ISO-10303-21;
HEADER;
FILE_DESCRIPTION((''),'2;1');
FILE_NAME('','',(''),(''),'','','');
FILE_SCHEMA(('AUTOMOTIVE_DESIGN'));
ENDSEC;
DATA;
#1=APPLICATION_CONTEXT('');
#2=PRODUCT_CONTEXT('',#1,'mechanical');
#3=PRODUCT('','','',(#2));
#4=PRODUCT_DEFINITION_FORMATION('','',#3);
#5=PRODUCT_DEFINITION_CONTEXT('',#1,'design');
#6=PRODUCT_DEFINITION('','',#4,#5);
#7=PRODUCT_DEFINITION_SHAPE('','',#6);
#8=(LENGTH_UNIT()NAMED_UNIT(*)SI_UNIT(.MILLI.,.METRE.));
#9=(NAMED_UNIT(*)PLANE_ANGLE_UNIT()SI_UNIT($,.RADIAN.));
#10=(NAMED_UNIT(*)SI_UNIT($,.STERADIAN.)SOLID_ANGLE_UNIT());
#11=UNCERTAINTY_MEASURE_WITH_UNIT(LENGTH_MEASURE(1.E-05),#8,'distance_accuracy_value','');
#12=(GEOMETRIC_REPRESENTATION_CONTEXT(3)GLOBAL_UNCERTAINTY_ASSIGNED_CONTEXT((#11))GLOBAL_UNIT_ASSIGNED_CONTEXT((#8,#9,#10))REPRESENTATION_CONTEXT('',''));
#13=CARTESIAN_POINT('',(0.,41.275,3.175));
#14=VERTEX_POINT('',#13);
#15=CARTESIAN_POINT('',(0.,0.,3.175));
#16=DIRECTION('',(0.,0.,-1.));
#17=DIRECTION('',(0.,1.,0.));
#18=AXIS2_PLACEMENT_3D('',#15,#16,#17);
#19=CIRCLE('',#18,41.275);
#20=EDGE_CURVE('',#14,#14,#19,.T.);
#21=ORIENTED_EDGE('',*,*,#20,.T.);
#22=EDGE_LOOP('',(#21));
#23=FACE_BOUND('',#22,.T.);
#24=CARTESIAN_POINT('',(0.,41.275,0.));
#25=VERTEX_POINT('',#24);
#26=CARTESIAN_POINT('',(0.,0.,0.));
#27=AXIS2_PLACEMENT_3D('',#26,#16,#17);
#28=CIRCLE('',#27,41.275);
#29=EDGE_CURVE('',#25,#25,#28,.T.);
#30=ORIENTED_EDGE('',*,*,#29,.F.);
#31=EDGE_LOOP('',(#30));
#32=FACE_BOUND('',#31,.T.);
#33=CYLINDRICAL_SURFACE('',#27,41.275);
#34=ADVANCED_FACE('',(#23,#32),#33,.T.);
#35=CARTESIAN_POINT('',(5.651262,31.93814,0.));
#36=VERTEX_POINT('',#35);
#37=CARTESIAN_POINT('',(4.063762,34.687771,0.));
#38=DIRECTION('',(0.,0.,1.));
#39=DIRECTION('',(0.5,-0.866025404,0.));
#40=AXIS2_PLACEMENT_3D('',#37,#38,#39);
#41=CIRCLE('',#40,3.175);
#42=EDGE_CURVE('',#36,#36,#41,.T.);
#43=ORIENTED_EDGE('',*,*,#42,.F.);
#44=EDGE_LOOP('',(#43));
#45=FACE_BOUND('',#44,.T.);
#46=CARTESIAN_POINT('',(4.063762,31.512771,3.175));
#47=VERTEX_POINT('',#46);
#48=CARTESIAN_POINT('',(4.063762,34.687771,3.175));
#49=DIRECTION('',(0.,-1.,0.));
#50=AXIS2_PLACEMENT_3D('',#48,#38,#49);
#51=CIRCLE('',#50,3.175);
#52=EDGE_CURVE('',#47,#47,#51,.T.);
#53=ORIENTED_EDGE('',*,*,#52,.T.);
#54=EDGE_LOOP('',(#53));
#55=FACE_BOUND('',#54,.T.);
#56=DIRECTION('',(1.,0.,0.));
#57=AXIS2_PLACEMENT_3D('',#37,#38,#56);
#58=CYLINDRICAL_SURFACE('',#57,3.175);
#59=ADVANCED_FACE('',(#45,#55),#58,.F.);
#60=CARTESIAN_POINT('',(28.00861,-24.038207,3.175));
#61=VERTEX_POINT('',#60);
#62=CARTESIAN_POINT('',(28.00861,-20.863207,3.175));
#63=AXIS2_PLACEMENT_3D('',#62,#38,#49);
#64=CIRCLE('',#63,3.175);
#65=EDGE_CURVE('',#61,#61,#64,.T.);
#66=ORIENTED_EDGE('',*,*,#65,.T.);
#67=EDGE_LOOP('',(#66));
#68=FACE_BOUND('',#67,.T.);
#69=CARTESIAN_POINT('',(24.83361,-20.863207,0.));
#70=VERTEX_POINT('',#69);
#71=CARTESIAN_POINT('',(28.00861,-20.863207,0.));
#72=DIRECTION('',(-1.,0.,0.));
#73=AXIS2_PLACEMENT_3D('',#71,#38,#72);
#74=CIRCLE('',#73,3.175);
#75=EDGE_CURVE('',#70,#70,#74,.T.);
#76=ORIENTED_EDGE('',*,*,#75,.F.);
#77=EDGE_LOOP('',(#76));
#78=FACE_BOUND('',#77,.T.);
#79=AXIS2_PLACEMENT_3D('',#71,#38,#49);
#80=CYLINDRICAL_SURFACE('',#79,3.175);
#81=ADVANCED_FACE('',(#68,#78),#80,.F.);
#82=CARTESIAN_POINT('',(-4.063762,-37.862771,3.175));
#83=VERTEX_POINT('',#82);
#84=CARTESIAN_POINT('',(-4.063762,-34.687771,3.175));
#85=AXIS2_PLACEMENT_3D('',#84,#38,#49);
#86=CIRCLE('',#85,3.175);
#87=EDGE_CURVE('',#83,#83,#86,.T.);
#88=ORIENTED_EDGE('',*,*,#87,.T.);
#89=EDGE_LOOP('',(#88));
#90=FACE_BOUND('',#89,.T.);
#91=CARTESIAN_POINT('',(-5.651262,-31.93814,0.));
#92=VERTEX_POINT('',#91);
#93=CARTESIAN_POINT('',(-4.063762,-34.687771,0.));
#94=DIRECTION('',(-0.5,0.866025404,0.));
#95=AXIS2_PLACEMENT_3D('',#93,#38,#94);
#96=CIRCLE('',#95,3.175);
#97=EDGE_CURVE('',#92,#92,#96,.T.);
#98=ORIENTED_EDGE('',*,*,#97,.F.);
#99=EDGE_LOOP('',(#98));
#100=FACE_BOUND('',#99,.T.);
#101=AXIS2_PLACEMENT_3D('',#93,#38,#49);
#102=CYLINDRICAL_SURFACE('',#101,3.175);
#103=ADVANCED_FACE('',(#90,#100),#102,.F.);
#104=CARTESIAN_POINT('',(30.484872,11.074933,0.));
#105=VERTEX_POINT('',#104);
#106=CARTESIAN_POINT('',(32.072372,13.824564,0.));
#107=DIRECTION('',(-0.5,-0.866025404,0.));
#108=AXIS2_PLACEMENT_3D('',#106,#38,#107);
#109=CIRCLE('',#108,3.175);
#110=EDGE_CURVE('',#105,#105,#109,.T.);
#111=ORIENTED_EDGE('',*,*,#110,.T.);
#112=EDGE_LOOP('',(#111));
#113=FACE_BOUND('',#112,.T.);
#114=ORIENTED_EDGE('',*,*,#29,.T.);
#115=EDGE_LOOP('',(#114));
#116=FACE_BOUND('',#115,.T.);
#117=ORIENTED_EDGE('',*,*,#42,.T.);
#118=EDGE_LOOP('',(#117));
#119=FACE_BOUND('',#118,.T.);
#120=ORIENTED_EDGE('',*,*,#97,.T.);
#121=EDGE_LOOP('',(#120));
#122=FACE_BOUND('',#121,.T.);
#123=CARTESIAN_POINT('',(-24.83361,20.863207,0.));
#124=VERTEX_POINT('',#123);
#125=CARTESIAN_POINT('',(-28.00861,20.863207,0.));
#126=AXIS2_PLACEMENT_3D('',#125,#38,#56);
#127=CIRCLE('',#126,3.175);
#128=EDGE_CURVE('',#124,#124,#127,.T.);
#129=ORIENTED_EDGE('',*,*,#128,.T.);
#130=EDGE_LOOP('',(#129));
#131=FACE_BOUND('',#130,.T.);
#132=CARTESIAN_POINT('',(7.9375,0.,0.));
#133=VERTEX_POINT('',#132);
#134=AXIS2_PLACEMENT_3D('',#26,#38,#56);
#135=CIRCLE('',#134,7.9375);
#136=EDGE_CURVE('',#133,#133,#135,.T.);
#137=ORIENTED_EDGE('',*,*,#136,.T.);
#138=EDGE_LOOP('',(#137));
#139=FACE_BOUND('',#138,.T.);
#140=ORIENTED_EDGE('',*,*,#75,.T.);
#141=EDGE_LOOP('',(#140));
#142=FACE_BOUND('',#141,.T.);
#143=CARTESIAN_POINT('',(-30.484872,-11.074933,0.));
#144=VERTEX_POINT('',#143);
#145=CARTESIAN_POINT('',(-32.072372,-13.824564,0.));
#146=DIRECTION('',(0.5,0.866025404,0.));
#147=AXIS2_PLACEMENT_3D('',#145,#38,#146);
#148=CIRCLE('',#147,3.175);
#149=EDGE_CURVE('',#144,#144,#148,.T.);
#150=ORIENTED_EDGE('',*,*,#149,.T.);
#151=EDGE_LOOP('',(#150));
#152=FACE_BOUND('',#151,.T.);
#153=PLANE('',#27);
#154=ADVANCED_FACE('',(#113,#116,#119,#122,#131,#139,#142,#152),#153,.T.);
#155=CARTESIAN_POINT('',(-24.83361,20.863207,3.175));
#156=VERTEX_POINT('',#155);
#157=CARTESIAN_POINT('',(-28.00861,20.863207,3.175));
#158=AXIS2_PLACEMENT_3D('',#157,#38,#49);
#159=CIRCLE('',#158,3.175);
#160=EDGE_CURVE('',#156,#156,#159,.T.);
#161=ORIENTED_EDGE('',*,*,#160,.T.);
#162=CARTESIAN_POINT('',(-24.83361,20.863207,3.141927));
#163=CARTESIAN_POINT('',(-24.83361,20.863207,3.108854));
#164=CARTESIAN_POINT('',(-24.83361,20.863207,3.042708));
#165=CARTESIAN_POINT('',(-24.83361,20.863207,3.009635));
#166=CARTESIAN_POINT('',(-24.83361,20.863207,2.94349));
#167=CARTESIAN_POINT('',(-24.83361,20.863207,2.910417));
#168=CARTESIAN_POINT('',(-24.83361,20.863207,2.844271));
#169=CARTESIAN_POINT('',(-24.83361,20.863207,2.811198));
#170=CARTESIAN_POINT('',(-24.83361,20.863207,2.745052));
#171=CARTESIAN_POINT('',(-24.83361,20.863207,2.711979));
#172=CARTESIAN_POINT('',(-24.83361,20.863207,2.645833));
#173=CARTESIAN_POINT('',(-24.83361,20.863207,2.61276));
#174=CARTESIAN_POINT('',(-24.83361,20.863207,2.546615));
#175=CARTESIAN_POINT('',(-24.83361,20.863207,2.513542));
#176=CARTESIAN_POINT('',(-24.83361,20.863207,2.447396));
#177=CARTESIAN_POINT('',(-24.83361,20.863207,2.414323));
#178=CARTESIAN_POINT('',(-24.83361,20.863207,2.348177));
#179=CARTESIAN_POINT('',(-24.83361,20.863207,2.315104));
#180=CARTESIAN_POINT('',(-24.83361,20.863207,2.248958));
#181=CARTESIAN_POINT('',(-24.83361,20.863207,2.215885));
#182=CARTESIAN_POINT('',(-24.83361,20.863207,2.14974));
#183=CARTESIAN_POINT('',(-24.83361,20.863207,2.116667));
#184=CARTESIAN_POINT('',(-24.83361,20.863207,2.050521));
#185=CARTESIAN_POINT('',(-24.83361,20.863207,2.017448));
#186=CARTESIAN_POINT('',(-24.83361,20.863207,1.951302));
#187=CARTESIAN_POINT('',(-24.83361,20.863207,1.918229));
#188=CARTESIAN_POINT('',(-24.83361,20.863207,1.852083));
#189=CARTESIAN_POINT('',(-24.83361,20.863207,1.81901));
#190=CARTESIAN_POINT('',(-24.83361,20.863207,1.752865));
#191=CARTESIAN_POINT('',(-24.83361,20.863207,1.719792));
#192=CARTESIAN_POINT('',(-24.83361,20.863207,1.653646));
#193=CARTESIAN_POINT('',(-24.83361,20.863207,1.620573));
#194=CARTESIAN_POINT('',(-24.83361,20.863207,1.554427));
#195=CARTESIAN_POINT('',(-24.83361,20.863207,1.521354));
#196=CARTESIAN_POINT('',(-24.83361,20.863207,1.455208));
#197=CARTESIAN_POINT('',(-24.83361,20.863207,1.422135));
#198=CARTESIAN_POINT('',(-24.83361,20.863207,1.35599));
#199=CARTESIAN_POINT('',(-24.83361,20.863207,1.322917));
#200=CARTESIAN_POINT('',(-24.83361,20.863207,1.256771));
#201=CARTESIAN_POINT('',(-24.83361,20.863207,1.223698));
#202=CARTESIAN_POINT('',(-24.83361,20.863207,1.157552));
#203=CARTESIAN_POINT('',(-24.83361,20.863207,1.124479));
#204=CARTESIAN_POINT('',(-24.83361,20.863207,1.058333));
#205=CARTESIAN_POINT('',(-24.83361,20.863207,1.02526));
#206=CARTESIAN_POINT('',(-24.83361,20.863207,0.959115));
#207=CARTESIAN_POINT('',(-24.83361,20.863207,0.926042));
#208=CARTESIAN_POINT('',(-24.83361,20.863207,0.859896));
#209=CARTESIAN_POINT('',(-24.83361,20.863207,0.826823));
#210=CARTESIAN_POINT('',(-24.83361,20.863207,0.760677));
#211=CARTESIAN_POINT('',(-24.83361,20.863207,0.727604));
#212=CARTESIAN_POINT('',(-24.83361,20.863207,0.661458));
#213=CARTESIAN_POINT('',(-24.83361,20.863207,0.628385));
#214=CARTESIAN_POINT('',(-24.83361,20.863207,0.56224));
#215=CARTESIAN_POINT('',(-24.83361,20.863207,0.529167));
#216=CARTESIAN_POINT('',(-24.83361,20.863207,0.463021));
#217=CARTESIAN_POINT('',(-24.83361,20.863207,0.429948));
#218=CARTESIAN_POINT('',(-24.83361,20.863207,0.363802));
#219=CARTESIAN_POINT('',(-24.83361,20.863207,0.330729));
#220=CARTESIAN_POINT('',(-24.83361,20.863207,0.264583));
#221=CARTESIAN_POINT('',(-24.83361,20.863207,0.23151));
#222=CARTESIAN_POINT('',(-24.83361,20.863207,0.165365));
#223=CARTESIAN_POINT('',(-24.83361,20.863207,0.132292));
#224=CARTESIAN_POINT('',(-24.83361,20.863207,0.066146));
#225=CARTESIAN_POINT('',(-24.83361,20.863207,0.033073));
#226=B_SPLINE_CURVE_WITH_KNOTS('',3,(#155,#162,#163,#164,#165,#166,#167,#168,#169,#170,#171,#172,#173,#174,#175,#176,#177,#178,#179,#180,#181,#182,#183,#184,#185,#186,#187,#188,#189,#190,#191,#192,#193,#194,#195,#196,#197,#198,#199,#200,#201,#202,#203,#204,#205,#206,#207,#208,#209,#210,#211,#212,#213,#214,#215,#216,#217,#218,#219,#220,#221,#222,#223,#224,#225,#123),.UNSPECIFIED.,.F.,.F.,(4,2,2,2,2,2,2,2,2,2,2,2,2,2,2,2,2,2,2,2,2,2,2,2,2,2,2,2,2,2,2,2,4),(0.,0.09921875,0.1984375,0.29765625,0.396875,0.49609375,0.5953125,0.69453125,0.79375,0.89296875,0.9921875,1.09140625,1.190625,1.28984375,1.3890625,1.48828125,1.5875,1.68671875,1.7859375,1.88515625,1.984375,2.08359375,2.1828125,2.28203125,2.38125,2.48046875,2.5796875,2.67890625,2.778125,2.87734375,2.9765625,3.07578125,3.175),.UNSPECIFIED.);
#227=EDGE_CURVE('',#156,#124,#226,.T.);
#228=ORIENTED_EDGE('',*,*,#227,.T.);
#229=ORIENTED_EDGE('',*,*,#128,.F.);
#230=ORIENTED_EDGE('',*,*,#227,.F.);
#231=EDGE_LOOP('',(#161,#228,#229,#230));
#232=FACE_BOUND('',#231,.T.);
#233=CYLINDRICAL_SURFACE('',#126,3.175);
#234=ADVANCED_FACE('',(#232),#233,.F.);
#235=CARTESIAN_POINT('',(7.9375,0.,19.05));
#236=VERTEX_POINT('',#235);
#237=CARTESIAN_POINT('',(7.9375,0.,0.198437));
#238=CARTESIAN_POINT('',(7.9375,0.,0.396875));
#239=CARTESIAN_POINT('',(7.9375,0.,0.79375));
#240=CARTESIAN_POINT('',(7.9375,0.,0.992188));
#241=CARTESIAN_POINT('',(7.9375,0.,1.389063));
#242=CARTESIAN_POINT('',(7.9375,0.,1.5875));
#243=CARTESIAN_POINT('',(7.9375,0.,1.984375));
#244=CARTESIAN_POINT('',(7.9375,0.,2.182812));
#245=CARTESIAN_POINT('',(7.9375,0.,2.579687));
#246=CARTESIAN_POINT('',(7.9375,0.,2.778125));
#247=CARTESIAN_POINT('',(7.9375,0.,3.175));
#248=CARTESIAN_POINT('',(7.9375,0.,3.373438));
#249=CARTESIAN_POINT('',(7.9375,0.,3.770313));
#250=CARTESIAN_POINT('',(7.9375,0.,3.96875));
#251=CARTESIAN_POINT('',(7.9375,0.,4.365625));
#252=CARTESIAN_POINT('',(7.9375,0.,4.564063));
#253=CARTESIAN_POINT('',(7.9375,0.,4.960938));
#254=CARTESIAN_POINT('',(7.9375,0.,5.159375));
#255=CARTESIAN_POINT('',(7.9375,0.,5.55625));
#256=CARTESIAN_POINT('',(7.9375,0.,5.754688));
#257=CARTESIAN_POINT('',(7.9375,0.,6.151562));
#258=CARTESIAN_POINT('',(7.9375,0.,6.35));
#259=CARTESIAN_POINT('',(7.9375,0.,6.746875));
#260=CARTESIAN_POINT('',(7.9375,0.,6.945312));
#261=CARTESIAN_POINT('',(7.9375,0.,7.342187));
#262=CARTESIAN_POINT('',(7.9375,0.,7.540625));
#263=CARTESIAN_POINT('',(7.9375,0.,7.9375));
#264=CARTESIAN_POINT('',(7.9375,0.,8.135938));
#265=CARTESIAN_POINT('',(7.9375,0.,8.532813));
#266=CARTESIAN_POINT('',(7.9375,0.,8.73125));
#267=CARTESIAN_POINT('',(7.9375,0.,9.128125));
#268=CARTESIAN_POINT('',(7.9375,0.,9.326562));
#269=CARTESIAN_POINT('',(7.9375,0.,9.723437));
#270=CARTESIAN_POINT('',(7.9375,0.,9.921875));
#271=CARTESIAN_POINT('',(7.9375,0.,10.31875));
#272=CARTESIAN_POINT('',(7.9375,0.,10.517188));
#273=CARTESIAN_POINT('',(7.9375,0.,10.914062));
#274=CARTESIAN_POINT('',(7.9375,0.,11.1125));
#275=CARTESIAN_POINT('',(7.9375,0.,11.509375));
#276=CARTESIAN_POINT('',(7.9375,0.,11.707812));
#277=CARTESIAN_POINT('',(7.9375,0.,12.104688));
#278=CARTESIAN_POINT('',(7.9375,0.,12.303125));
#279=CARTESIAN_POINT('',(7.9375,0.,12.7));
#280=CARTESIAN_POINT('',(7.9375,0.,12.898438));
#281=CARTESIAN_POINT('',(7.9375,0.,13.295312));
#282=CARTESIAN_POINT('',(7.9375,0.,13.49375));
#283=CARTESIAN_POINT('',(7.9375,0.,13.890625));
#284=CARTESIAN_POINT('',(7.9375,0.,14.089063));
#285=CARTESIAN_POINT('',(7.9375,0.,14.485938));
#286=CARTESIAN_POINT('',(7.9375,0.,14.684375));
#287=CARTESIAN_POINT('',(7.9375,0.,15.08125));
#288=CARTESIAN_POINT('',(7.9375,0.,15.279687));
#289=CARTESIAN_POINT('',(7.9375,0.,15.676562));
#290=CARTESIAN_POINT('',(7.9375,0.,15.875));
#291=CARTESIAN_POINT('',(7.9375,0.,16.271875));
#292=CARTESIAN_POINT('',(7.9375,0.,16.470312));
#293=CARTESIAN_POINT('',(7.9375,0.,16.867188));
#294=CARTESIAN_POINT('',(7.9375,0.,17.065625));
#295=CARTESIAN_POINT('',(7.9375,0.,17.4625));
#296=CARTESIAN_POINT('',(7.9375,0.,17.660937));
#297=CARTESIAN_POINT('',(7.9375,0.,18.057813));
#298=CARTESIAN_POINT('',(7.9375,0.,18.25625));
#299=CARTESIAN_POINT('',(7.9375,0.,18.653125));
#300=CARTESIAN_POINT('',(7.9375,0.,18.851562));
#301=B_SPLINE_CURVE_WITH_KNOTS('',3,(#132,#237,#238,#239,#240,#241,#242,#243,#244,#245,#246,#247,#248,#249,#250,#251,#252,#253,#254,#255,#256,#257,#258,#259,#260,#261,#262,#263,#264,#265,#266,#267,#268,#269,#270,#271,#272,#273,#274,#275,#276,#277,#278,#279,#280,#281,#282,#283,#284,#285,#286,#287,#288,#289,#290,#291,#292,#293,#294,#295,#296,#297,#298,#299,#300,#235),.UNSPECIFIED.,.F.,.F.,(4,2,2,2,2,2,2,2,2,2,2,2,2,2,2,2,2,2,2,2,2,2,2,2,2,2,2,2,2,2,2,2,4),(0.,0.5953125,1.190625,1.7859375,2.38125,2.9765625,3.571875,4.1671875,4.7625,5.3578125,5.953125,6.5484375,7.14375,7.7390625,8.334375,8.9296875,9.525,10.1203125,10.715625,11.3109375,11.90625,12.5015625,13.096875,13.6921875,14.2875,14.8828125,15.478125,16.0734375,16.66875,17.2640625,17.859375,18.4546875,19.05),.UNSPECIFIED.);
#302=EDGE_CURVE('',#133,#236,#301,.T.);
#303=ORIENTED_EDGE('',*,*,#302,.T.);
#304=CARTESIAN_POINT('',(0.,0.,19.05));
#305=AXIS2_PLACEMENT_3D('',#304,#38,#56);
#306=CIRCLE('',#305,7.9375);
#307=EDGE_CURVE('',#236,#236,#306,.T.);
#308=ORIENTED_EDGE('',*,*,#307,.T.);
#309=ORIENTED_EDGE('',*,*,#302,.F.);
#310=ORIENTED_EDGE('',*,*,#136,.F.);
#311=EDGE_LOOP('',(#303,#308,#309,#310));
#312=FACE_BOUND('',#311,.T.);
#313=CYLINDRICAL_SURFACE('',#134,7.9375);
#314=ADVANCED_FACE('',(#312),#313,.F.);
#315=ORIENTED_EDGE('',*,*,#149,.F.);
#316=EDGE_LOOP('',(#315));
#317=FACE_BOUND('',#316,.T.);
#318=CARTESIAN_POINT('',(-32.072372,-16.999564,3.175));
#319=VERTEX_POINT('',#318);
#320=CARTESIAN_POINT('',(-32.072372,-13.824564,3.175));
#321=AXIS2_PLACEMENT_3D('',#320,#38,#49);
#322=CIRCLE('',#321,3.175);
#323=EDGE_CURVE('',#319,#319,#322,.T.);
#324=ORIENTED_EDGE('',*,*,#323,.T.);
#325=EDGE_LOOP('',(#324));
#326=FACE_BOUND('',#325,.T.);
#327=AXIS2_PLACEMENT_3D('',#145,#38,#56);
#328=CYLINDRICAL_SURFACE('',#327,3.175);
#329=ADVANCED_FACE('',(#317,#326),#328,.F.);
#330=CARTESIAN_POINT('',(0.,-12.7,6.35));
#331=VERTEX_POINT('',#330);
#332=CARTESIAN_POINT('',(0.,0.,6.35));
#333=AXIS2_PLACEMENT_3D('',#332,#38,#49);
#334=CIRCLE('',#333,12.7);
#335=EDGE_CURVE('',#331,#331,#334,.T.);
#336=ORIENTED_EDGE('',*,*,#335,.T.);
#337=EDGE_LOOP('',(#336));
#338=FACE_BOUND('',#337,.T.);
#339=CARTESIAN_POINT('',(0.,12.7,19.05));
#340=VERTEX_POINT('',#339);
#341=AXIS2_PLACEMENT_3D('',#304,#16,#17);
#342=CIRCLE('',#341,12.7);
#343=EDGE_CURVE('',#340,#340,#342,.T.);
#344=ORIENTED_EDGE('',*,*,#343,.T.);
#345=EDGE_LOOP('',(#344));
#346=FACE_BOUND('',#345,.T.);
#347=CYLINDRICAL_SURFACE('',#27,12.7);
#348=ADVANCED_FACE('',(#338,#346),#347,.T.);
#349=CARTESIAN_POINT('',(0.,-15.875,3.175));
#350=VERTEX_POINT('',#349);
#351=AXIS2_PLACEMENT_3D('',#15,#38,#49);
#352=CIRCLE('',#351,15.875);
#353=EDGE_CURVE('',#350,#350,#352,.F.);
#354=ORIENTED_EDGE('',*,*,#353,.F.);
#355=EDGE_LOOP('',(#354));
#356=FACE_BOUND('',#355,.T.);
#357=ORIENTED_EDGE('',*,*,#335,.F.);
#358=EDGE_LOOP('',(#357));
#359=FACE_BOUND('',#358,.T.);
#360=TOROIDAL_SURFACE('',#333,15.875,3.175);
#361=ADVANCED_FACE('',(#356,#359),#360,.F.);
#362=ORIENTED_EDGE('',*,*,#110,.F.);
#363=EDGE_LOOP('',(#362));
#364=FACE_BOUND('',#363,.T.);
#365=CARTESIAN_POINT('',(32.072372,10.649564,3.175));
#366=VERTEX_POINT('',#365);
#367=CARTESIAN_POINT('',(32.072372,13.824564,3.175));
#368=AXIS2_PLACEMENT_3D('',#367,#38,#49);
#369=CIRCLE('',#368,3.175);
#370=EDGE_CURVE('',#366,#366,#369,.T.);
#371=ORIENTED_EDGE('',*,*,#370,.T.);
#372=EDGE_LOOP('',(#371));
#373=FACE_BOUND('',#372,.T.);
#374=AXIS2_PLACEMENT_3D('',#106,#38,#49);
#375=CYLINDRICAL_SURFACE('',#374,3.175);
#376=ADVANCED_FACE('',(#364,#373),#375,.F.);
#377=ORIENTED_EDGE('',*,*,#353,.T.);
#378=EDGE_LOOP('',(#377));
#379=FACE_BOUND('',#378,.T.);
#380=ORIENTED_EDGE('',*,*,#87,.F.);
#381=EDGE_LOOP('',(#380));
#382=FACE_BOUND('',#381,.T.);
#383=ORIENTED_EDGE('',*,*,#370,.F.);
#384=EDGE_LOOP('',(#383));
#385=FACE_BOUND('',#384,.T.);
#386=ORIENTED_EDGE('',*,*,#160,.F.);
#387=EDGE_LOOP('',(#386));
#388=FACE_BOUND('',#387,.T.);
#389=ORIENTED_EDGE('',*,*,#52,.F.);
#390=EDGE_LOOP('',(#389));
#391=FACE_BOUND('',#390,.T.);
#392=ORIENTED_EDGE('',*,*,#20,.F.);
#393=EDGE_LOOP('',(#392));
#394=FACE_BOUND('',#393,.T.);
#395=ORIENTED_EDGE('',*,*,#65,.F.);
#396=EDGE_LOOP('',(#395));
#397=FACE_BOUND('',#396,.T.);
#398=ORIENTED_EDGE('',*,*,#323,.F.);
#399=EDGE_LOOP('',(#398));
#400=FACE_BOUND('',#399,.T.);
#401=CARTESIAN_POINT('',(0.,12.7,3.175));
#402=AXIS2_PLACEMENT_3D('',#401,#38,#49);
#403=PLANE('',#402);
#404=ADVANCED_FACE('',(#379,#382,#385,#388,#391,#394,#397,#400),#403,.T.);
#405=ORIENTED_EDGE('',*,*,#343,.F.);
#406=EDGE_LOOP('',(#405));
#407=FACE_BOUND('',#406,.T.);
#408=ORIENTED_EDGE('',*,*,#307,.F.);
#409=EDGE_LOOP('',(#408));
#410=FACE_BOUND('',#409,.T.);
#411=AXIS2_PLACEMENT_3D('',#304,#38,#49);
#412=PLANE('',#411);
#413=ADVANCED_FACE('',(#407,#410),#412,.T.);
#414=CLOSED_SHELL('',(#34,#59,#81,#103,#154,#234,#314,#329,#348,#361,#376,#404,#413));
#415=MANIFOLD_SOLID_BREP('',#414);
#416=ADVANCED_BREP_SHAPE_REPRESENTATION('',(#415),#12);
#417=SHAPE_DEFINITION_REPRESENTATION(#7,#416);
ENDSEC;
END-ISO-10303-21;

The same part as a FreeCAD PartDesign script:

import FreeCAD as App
import Part
import Sketcher
from FreeCAD import Vector
Q = App.Units.Quantity


def edges_at(feature, points):
    """Names of the edges that pass closest to the given points."""
    edges = feature.Shape.Edges
    near = lambda p: min(range(len(edges)), key=lambda i: edges[i].distToShape(Part.Vertex(*p))[0])
    return sorted({f"Edge{near(p) + 1}" for p in points})


def add_polygon(sketch, points):
    """Adds a closed chain of lines whose ends are joined by coincident constraints."""
    first, n = sketch.GeometryCount, len(points)
    for a, b in zip(points, points[1:] + points[:1]):
        sketch.addGeometry(Part.LineSegment(App.Vector(*a, 0), App.Vector(*b, 0)), False)
    for i in range(n):
        sketch.addConstraint(Sketcher.Constraint("Coincident", first + i, 2, first + (i + 1) % n, 1))

doc = App.newDocument("Part")
body = doc.addObject("PartDesign::Body", "Body")

sketch1 = body.newObject("Sketcher::SketchObject", "Sketch")
sketch1.AttachmentSupport = (doc.getObject("YZ_Plane"), [""])
sketch1.MapMode = "FlatFace"
add_polygon(sketch1, [(0, 0), (41.3, 0), (41.3, 3.2), (12.7, 3.2), (12.7, 19.1), (0, 19.1)])
sketch1.addConstraint(Sketcher.Constraint("Horizontal", 0))
sketch1.addConstraint(Sketcher.Constraint("Vertical", 1))
sketch1.addConstraint(Sketcher.Constraint("Horizontal", 2))
sketch1.addConstraint(Sketcher.Constraint("Vertical", 3))
sketch1.addConstraint(Sketcher.Constraint("Horizontal", 4))
sketch1.addConstraint(Sketcher.Constraint("Vertical", 5))
sketch1.addConstraint(Sketcher.Constraint("Coincident", 5, 2, -1, 1))
sketch1.addConstraint(Sketcher.Constraint("DistanceX", 4, 2, 4, 1, Q("0.5 in")))
sketch1.addConstraint(Sketcher.Constraint("DistanceY", 5, 2, 5, 1, Q("0.75 in")))
sketch1.addConstraint(Sketcher.Constraint("DistanceX", 0, 1, 0, 2, Q("1.625 in")))
sketch1.addConstraint(Sketcher.Constraint("DistanceY", 1, 1, 1, 2, Q("0.125 in")))
revolution = body.newObject("PartDesign::Revolution", "Revolution")
revolution.Profile = sketch1
revolution.ReferenceAxis = (sketch1, ["V_Axis"])
revolution.Angle = 360

sketch2 = body.newObject("Sketcher::SketchObject", "Sketch001")
sketch2.AttachmentSupport = (doc.getObject("XY_Plane"), [""])
sketch2.MapMode = "FlatFace"
sketch2.AttachmentOffset = App.Placement(Vector(0, 0, 0.75 * 25.4), App.Rotation())
sketch2.addGeometry(Part.Circle(Vector(0, 0, 0), Vector(0, 0, 1), 7.9), False)
sketch2.addGeometry(Part.Circle(Vector(-28, 20.9, 0), Vector(0, 0, 1), 3.2), False)
sketch2.addConstraint(Sketcher.Constraint("Coincident", 0, 3, -1, 1))
sketch2.addConstraint(Sketcher.Constraint("Diameter", 1, Q("0.25 in")))
sketch2.addConstraint(Sketcher.Constraint("Diameter", 0, Q("0.625 in")))
sketch2.addConstraint(Sketcher.Constraint("DistanceX", 1, 3, -1, 1, Q("28.00861 mm")))
sketch2.addConstraint(Sketcher.Constraint("DistanceY", -1, 1, 1, 3, Q("20.863207 mm")))
pocket1 = body.newObject("PartDesign::Pocket", "Pocket")
pocket1.Profile = sketch2
pocket1.Type = "ThroughAll"
doc.recompute()

polarpattern = body.newObject("PartDesign::PolarPattern", "PolarPattern")
polarpattern.Originals = [pocket1]
polarpattern.Axis = (doc.getObject("Z_Axis"), [""])
polarpattern.Angle = 360
polarpattern.Occurrences = 6
body.Tip = polarpattern
doc.recompute()

fillet = body.newObject("PartDesign::Fillet", "Fillet")
fillet.Base = (polarpattern, edges_at(polarpattern, [(0, -12.7, 3.175)]))
fillet.Radius = Q("0.125 in")

doc.recompute()
